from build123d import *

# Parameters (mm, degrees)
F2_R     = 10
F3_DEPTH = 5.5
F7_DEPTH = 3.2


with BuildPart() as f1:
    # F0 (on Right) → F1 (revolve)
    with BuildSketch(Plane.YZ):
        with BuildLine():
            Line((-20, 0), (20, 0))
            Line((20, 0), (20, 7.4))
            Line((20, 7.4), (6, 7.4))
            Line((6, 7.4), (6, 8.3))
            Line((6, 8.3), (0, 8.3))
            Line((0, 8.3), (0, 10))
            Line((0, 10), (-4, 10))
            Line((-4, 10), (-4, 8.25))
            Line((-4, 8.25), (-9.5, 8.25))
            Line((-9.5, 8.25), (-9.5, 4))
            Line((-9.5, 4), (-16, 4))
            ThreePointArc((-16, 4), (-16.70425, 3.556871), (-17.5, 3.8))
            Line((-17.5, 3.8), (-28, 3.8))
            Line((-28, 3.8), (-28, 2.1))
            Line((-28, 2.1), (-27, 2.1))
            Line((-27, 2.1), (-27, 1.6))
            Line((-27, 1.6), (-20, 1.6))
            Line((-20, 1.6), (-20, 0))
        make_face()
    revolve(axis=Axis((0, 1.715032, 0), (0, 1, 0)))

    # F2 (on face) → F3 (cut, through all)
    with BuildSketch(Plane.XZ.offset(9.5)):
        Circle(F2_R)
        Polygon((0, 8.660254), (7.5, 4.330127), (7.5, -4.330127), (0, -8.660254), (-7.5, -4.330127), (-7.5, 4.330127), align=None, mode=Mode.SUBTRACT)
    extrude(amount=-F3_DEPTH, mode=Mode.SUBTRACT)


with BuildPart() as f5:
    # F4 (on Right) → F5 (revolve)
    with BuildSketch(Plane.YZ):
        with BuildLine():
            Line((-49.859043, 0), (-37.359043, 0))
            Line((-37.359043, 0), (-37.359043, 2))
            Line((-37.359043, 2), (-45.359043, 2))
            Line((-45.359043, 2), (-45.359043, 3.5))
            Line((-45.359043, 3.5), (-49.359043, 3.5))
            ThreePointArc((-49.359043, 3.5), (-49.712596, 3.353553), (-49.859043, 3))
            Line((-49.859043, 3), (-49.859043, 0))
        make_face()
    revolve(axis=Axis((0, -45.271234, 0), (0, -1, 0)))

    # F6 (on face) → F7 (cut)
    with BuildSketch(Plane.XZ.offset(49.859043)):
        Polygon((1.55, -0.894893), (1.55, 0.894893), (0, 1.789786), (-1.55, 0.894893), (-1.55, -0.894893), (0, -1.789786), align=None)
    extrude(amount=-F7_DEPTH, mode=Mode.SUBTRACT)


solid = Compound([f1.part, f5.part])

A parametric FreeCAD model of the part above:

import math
import FreeCAD as App
import Part
import Sketcher
from FreeCAD import Vector
Q = App.Units.Quantity


def add_polygon(sketch, points):
    """Adds a closed chain of lines whose ends are joined by coincident constraints."""
    first, n = sketch.GeometryCount, len(points)
    for a, b in zip(points, points[1:] + points[:1]):
        sketch.addGeometry(Part.LineSegment(App.Vector(*a, 0), App.Vector(*b, 0)), False)
    for i in range(n):
        sketch.addConstraint(Sketcher.Constraint("Coincident", first + i, 2, first + (i + 1) % n, 1))

doc = App.newDocument("Part")
body = doc.addObject("PartDesign::Body", "Body")

# Sketch on YZ plane
sketch1 = body.newObject("Sketcher::SketchObject", "Sketch")
sketch1.AttachmentSupport = (doc.getObject("YZ_Plane"), [""])
sketch1.MapMode = "FlatFace"
sketch1.addGeometry(Part.LineSegment(Vector(-20, 0, 0), Vector(20, 0, 0)), False)
sketch1.addGeometry(Part.LineSegment(Vector(20, 0, 0), Vector(20, 7.4, 0)), False)
sketch1.addGeometry(Part.LineSegment(Vector(20, 7.4, 0), Vector(6, 7.4, 0)), False)
sketch1.addGeometry(Part.LineSegment(Vector(6, 7.4, 0), Vector(6, 8.3, 0)), False)
sketch1.addGeometry(Part.LineSegment(Vector(6, 8.3, 0), Vector(0, 8.3, 0)), False)
sketch1.addGeometry(Part.LineSegment(Vector(0, 8.3, 0), Vector(0, 10, 0)), False)
sketch1.addGeometry(Part.LineSegment(Vector(0, 10, 0), Vector(-4, 10, 0)), False)
sketch1.addGeometry(Part.LineSegment(Vector(-4, 10, 0), Vector(-4, 8.2, 0)), False)
sketch1.addGeometry(Part.LineSegment(Vector(-4, 8.2, 0), Vector(-9.5, 8.2, 0)), False)
sketch1.addGeometry(Part.LineSegment(Vector(-9.5, 8.2, 0), Vector(-9.5, 4, 0)), False)
sketch1.addGeometry(Part.LineSegment(Vector(-9.5, 4, 0), Vector(-16, 4, 0)), False)
sketch1.addGeometry(Part.ArcOfCircle(Part.Circle(Vector(-16.8, 4.5, 0), Vector(0, 0, 1), 1), math.radians(-132), math.radians(-33)), False)
sketch1.addGeometry(Part.LineSegment(Vector(-17.5, 3.8, 0), Vector(-28, 3.8, 0)), False)
sketch1.addGeometry(Part.LineSegment(Vector(-28, 3.8, 0), Vector(-28, 2.1, 0)), False)
sketch1.addGeometry(Part.LineSegment(Vector(-28, 2.1, 0), Vector(-27, 2.1, 0)), False)
sketch1.addGeometry(Part.LineSegment(Vector(-27, 2.1, 0), Vector(-27, 1.6, 0)), False)
sketch1.addGeometry(Part.LineSegment(Vector(-27, 1.6, 0), Vector(-20, 1.6, 0)), False)
sketch1.addGeometry(Part.LineSegment(Vector(-20, 1.6, 0), Vector(-20, 0, 0)), False)
sketch1.addConstraint(Sketcher.Constraint("Coincident", 0, 2, 1, 1))
sketch1.addConstraint(Sketcher.Constraint("Coincident", 1, 2, 2, 1))
sketch1.addConstraint(Sketcher.Constraint("Coincident", 2, 2, 3, 1))
sketch1.addConstraint(Sketcher.Constraint("Coincident", 3, 2, 4, 1))
sketch1.addConstraint(Sketcher.Constraint("Coincident", 4, 2, 5, 1))
sketch1.addConstraint(Sketcher.Constraint("Coincident", 5, 2, 6, 1))
sketch1.addConstraint(Sketcher.Constraint("Coincident", 6, 2, 7, 1))
sketch1.addConstraint(Sketcher.Constraint("Coincident", 7, 2, 8, 1))
sketch1.addConstraint(Sketcher.Constraint("Coincident", 8, 2, 9, 1))
sketch1.addConstraint(Sketcher.Constraint("Coincident", 9, 2, 10, 1))
sketch1.addConstraint(Sketcher.Constraint("Coincident", 10, 2, 11, 2))
sketch1.addConstraint(Sketcher.Constraint("Coincident", 11, 1, 12, 1))
sketch1.addConstraint(Sketcher.Constraint("Coincident", 12, 2, 13, 1))
sketch1.addConstraint(Sketcher.Constraint("Coincident", 13, 2, 14, 1))
sketch1.addConstraint(Sketcher.Constraint("Coincident", 14, 2, 15, 1))
sketch1.addConstraint(Sketcher.Constraint("Coincident", 15, 2, 16, 1))
sketch1.addConstraint(Sketcher.Constraint("Coincident", 16, 2, 17, 1))
sketch1.addConstraint(Sketcher.Constraint("Coincident", 17, 2, 0, 1))
sketch1.addConstraint(Sketcher.Constraint("Horizontal", 0))
sketch1.addConstraint(Sketcher.Constraint("Vertical", 1))
sketch1.addConstraint(Sketcher.Constraint("Horizontal", 2))
sketch1.addConstraint(Sketcher.Constraint("Vertical", 3))
sketch1.addConstraint(Sketcher.Constraint("Horizontal", 4))
sketch1.addConstraint(Sketcher.Constraint("Vertical", 5))
sketch1.addConstraint(Sketcher.Constraint("Horizontal", 6))
sketch1.addConstraint(Sketcher.Constraint("Vertical", 7))
sketch1.addConstraint(Sketcher.Constraint("Horizontal", 8))
sketch1.addConstraint(Sketcher.Constraint("Vertical", 9))
sketch1.addConstraint(Sketcher.Constraint("Horizontal", 10))
sketch1.addConstraint(Sketcher.Constraint("Horizontal", 12))
sketch1.addConstraint(Sketcher.Constraint("Vertical", 13))
sketch1.addConstraint(Sketcher.Constraint("Horizontal", 14))
sketch1.addConstraint(Sketcher.Constraint("Vertical", 15))
sketch1.addConstraint(Sketcher.Constraint("Horizontal", 16))
sketch1.addConstraint(Sketcher.Constraint("Vertical", 17))
sketch1.addConstraint(Sketcher.Constraint("Symmetric", 0, 2, 17, 2, -1, 1))
sketch1.addConstraint(Sketcher.Constraint("PointOnObject", 4, 2, -2))
sketch1.addConstraint(Sketcher.Constraint("Equal", 5, 13))
sketch1.addConstraint(Sketcher.Constraint("Radius", 11, 0.999999))
sketch1.addConstraint(Sketcher.Constraint("DistanceX", 0, 1, 0, 2, 40.0))
sketch1.addConstraint(Sketcher.Constraint("DistanceX", 2, 2, 2, 1, 14.0))
sketch1.addConstraint(Sketcher.Constraint("DistanceX", 6, 2, 6, 1, 4.0))
sketch1.addConstraint(Sketcher.Constraint("DistanceX", 14, 1, 14, 2, 1.0))
sketch1.addConstraint(Sketcher.Constraint("DistanceX", 16, 1, 16, 2, 7.0))
sketch1.addConstraint(Sketcher.Constraint("DistanceX", 8, 2, 8, 1, 5.5))
sketch1.addConstraint(Sketcher.Constraint("DistanceX", 10, 2, 10, 1, 6.5))
sketch1.addConstraint(Sketcher.Constraint("DistanceX", 12, 2, 12, 1, 10.5))
sketch1.addConstraint(Sketcher.Constraint("DistanceY", 1, 1, 1, 2, 7.4))
sketch1.addConstraint(Sketcher.Constraint("DistanceY", 3, 1, 3, 2, 0.9))
sketch1.addConstraint(Sketcher.Constraint("DistanceY", 5, 1, 5, 2, 1.7))
sketch1.addConstraint(Sketcher.Constraint("DistanceY", 15, 2, 15, 1, 0.5))
sketch1.addConstraint(Sketcher.Constraint("DistanceY", 17, 2, 17, 1, 1.6))
sketch1.addConstraint(Sketcher.Constraint("DistanceY", -1, 1, 9, 2, 4.0))
sketch1.addConstraint(Sketcher.Constraint("DistanceY", 7, 2, 7, 1, 1.75))
revolution = body.newObject("PartDesign::Revolution", "Revolution")
revolution.Profile = sketch1
revolution.ReferenceAxis = (sketch1, ["H_Axis"])
revolution.Angle = 360

# Sketch on XZ plane
sketch2 = body.newObject("Sketcher::SketchObject", "Sketch001")
sketch2.AttachmentSupport = (doc.getObject("XZ_Plane"), [""])
sketch2.MapMode = "FlatFace"
sketch2.AttachmentOffset = App.Placement(Vector(0, 0, 9.5), App.Rotation())
sketch2.addGeometry(Part.Circle(Vector(0, 0, 0), Vector(0, 0, 1), 10), False)  # 0
add_polygon(sketch2, [(-8, 4), (0, 9), (8, 4), (8, -4), (0, -9), (-8, -4)])  # lines 1-6
sketch2.addConstraint(Sketcher.Constraint("Vertical", 3))
sketch2.addConstraint(Sketcher.Constraint("Vertical", 6))
sketch2.addConstraint(Sketcher.Constraint("Coincident", 0, 3, -1, 1))
sketch2.addConstraint(Sketcher.Constraint("Symmetric", 1, 2, 4, 2, -1, 1))
sketch2.addConstraint(Sketcher.Constraint("Symmetric", 2, 2, 5, 2, -1, 1))
sketch2.addConstraint(Sketcher.Constraint("PointOnObject", 1, 2, -2))
sketch2.addConstraint(Sketcher.Constraint("Parallel", 1, 4))
sketch2.addConstraint(Sketcher.Constraint("Horizontal", 3, 2, 5, 2))
sketch2.addConstraint(Sketcher.Constraint("Diameter", 0, 20.0))
sketch2.addConstraint(Sketcher.Constraint("Angle", 1, Q("30 deg")))
sketch2.addConstraint(Sketcher.Constraint("DistanceX", 5, 2, 3, 2, 15.0))
sketch2.addConstraint(Sketcher.Constraint("DistanceY", 3, 2, 3, 1, 8.660254))
pocket1 = body.newObject("PartDesign::Pocket", "Pocket")
pocket1.Profile = sketch2
pocket1.Length = 5.5
body2 = doc.addObject("PartDesign::Body", "Body001")

# Sketch on YZ plane
sketch3 = body2.newObject("Sketcher::SketchObject", "Sketch002")
sketch3.AttachmentSupport = (doc.getObject("YZ_Plane001"), [""])
sketch3.MapMode = "FlatFace"
sketch3.addGeometry(Part.LineSegment(Vector(-49.9, 0, 0), Vector(-37.4, 0, 0)), False)
sketch3.addGeometry(Part.LineSegment(Vector(-37.4, 0, 0), Vector(-37.4, 2, 0)), False)
sketch3.addGeometry(Part.LineSegment(Vector(-37.4, 2, 0), Vector(-45.4, 2, 0)), False)
sketch3.addGeometry(Part.LineSegment(Vector(-45.4, 2, 0), Vector(-45.4, 3.5, 0)), False)
sketch3.addGeometry(Part.LineSegment(Vector(-45.4, 3.5, 0), Vector(-49.4, 3.5, 0)), False)
sketch3.addGeometry(Part.ArcOfCircle(Part.Circle(Vector(-49.4, 3, 0), Vector(0, 0, 1), 0.5), math.radians(90), math.radians(180)), False)
sketch3.addGeometry(Part.LineSegment(Vector(-49.9, 3, 0), Vector(-49.9, 0, 0)), False)
sketch3.addConstraint(Sketcher.Constraint("Coincident", 0, 2, 1, 1))
sketch3.addConstraint(Sketcher.Constraint("Coincident", 1, 2, 2, 1))
sketch3.addConstraint(Sketcher.Constraint("Coincident", 2, 2, 3, 1))
sketch3.addConstraint(Sketcher.Constraint("Coincident", 3, 2, 4, 1))
sketch3.addConstraint(Sketcher.Constraint("Coincident", 4, 2, 5, 1))
sketch3.addConstraint(Sketcher.Constraint("Coincident", 5, 2, 6, 1))
sketch3.addConstraint(Sketcher.Constraint("Coincident", 6, 2, 0, 1))
sketch3.addConstraint(Sketcher.Constraint("Horizontal", 0))
sketch3.addConstraint(Sketcher.Constraint("Vertical", 1))
sketch3.addConstraint(Sketcher.Constraint("Horizontal", 2))
sketch3.addConstraint(Sketcher.Constraint("Vertical", 3))
sketch3.addConstraint(Sketcher.Constraint("Horizontal", 4))
sketch3.addConstraint(Sketcher.Constraint("Vertical", 6))
sketch3.addConstraint(Sketcher.Constraint("PointOnObject", 0, 2, -1))
sketch3.addConstraint(Sketcher.Constraint("Vertical", 5, 3, 4, 2))
sketch3.addConstraint(Sketcher.Constraint("Radius", 5, 0.500001))
sketch3.addConstraint(Sketcher.Constraint("DistanceX", 2, 2, 2, 1, 8.0))
sketch3.addConstraint(Sketcher.Constraint("DistanceX", 4, 2, 4, 1, 4.0))
sketch3.addConstraint(Sketcher.Constraint("DistanceY", 1, 1, 1, 2, 2.0))
sketch3.addConstraint(Sketcher.Constraint("DistanceY", 6, 2, 6, 1, 3.0))
sketch3.addConstraint(Sketcher.Constraint("DistanceY", 3, 1, 3, 2, 1.5))
sketch3.addConstraint(Sketcher.Constraint("DistanceX", 5, 3, -1, 1, 49.359042))
revolution2 = body2.newObject("PartDesign::Revolution", "Revolution001")
revolution2.Profile = sketch3
revolution2.ReferenceAxis = (sketch3, ["H_Axis"])
revolution2.Angle = 360

# Sketch on XZ plane
sketch4 = body2.newObject("Sketcher::SketchObject", "Sketch003")
sketch4.AttachmentSupport = (doc.getObject("XZ_Plane001"), [""])
sketch4.MapMode = "FlatFace"
sketch4.AttachmentOffset = App.Placement(Vector(0, 0, 49.859043), App.Rotation())
add_polygon(sketch4, [(1.6, -0.9), (1.6, 0.9), (0, 1.8), (-1.6, 0.9), (-1.6, -0.9), (0, -1.8)])  # lines 0-5
sketch4.addConstraint(Sketcher.Constraint("Vertical", 0))
sketch4.addConstraint(Sketcher.Constraint("Vertical", 3))
sketch4.addConstraint(Sketcher.Constraint("Symmetric", 0, 2, 3, 2, -1, 1))
sketch4.addConstraint(Sketcher.Constraint("Symmetric", 1, 2, 4, 2, -1, 1))
sketch4.addConstraint(Sketcher.Constraint("PointOnObject", 1, 2, -2))
sketch4.addConstraint(Sketcher.Constraint("Parallel", 2, 5))
sketch4.addConstraint(Sketcher.Constraint("Horizontal", 0, 2, 2, 2))
sketch4.addConstraint(Sketcher.Constraint("Angle", 1, Q("149.999998 deg")))
sketch4.addConstraint(Sketcher.Constraint("DistanceX", 2, 2, 0, 2, 3.1))
sketch4.addConstraint(Sketcher.Constraint("DistanceY", 0, 1, 0, 2, 1.789786))
pocket2 = body2.newObject("PartDesign::Pocket", "Pocket001")
pocket2.Profile = sketch4
pocket2.Length = 3.2

doc.recompute()
